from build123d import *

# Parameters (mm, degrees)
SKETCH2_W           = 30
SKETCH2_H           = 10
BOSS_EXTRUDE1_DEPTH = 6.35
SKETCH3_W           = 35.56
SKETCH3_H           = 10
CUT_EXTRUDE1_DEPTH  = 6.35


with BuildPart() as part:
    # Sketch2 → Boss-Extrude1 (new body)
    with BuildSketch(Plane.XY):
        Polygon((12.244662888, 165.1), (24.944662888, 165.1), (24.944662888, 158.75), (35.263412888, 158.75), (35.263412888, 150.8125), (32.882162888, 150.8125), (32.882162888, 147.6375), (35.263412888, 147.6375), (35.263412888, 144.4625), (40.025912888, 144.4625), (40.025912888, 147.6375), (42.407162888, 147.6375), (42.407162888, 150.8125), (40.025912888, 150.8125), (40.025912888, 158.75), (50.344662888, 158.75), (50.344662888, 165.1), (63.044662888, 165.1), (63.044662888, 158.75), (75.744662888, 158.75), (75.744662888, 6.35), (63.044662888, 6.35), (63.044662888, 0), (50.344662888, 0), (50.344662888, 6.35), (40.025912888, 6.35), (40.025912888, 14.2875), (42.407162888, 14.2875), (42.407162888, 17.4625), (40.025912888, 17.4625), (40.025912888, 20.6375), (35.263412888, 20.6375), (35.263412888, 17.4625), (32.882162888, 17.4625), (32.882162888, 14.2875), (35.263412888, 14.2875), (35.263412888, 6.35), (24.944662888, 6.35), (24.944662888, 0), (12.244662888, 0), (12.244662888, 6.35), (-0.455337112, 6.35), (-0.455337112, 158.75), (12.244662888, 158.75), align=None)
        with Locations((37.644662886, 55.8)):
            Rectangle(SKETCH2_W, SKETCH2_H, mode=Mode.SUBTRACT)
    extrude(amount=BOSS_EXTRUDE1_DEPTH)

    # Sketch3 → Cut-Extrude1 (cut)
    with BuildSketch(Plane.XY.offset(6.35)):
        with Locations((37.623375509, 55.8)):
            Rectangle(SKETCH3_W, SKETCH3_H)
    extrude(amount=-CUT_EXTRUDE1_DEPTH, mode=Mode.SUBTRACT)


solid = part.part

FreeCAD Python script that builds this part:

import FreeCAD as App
import Part
import Sketcher

V = App.Vector
Q = App.Units.Quantity

doc = App.newDocument("Part")
body = doc.addObject("PartDesign::Body", "Body")

sketch1 = body.newObject("Sketcher::SketchObject", "Sketch")
sketch1.AttachmentSupport = (doc.getObject("XY_Plane"), [""])
sketch1.MapMode = "FlatFace"
sketch1.addGeometry(Part.LineSegment(V(24.9, 165.1, 0), V(12.2, 165.1, 0)), False)
sketch1.addGeometry(Part.LineSegment(V(12.2, 165.1, 0), V(12.2, 158.8, 0)), False)
sketch1.addGeometry(Part.LineSegment(V(12.2, 158.8, 0), V(-0.5, 158.8, 0)), False)
sketch1.addGeometry(Part.LineSegment(V(-0.5, 158.8, 0), V(-0.5, 6.3, 0)), False)
sketch1.addGeometry(Part.LineSegment(V(-0.5, 6.3, 0), V(12.2, 6.3, 0)), False)
sketch1.addGeometry(Part.LineSegment(V(12.2, 6.3, 0), V(12.2, 0, 0)), False)
sketch1.addGeometry(Part.LineSegment(V(12.2, 0, 0), V(24.9, 0, 0)), False)
sketch1.addGeometry(Part.LineSegment(V(24.9, 0, 0), V(24.9, 6.3, 0)), False)
sketch1.addGeometry(Part.LineSegment(V(24.9, 6.3, 0), V(35.3, 6.3, 0)), False)
sketch1.addGeometry(Part.LineSegment(V(35.3, 6.3, 0), V(35.3, 14.3, 0)), False)
sketch1.addGeometry(Part.LineSegment(V(35.3, 14.3, 0), V(32.9, 14.3, 0)), False)
sketch1.addGeometry(Part.LineSegment(V(32.9, 14.3, 0), V(32.9, 17.5, 0)), False)
sketch1.addGeometry(Part.LineSegment(V(32.9, 17.5, 0), V(35.3, 17.5, 0)), False)
sketch1.addGeometry(Part.LineSegment(V(35.3, 17.5, 0), V(35.3, 20.6, 0)), False)
sketch1.addGeometry(Part.LineSegment(V(35.3, 20.6, 0), V(40, 20.6, 0)), False)
sketch1.addGeometry(Part.LineSegment(V(40, 20.6, 0), V(40, 17.5, 0)), False)
sketch1.addGeometry(Part.LineSegment(V(40, 17.5, 0), V(42.4, 17.5, 0)), False)
sketch1.addGeometry(Part.LineSegment(V(42.4, 17.5, 0), V(42.4, 14.3, 0)), False)
sketch1.addGeometry(Part.LineSegment(V(42.4, 14.3, 0), V(40, 14.3, 0)), False)
sketch1.addGeometry(Part.LineSegment(V(40, 14.3, 0), V(40, 6.3, 0)), False)
sketch1.addGeometry(Part.LineSegment(V(40, 6.3, 0), V(50.3, 6.3, 0)), False)
sketch1.addGeometry(Part.LineSegment(V(50.3, 6.3, 0), V(50.3, 0, 0)), False)
sketch1.addGeometry(Part.LineSegment(V(50.3, 0, 0), V(63, 0, 0)), False)
sketch1.addGeometry(Part.LineSegment(V(63, 0, 0), V(63, 6.3, 0)), False)
sketch1.addGeometry(Part.LineSegment(V(63, 6.3, 0), V(75.7, 6.3, 0)), False)
sketch1.addGeometry(Part.LineSegment(V(75.7, 6.3, 0), V(75.7, 158.8, 0)), False)
sketch1.addGeometry(Part.LineSegment(V(75.7, 158.8, 0), V(63, 158.8, 0)), False)
sketch1.addGeometry(Part.LineSegment(V(63, 158.8, 0), V(63, 165.1, 0)), False)
sketch1.addGeometry(Part.LineSegment(V(63, 165.1, 0), V(50.3, 165.1, 0)), False)
sketch1.addGeometry(Part.LineSegment(V(50.3, 165.1, 0), V(50.3, 158.8, 0)), False)
sketch1.addGeometry(Part.LineSegment(V(50.3, 158.8, 0), V(40, 158.8, 0)), False)
sketch1.addGeometry(Part.LineSegment(V(40, 158.8, 0), V(40, 150.8, 0)), False)
sketch1.addGeometry(Part.LineSegment(V(40, 150.8, 0), V(42.4, 150.8, 0)), False)
sketch1.addGeometry(Part.LineSegment(V(42.4, 150.8, 0), V(42.4, 147.6, 0)), False)
sketch1.addGeometry(Part.LineSegment(V(42.4, 147.6, 0), V(40, 147.6, 0)), False)
sketch1.addGeometry(Part.LineSegment(V(40, 147.6, 0), V(40, 144.5, 0)), False)
sketch1.addGeometry(Part.LineSegment(V(40, 144.5, 0), V(35.3, 144.5, 0)), False)
sketch1.addGeometry(Part.LineSegment(V(35.3, 144.5, 0), V(35.3, 147.6, 0)), False)
sketch1.addGeometry(Part.LineSegment(V(35.3, 147.6, 0), V(32.9, 147.6, 0)), False)
sketch1.addGeometry(Part.LineSegment(V(32.9, 147.6, 0), V(32.9, 150.8, 0)), False)
sketch1.addGeometry(Part.LineSegment(V(32.9, 150.8, 0), V(35.3, 150.8, 0)), False)
sketch1.addGeometry(Part.LineSegment(V(35.3, 150.8, 0), V(35.3, 158.8, 0)), False)
sketch1.addGeometry(Part.LineSegment(V(35.3, 158.8, 0), V(24.9, 158.8, 0)), False)
sketch1.addGeometry(Part.LineSegment(V(24.9, 158.8, 0), V(24.9, 165.1, 0)), False)
sketch1.addGeometry(Part.LineSegment(V(22.6, 50.8, 0), V(22.6, 60.8, 0)), False)
sketch1.addGeometry(Part.LineSegment(V(22.6, 60.8, 0), V(52.6, 60.8, 0)), False)
sketch1.addGeometry(Part.LineSegment(V(52.6, 60.8, 0), V(52.6, 50.8, 0)), False)
sketch1.addGeometry(Part.LineSegment(V(52.6, 50.8, 0), V(22.6, 50.8, 0)), False)
sketch1.addConstraint(Sketcher.Constraint("Coincident", 0, 2, 1, 1))
sketch1.addConstraint(Sketcher.Constraint("Coincident", 1, 2, 2, 1))
sketch1.addConstraint(Sketcher.Constraint("Coincident", 2, 2, 3, 1))
sketch1.addConstraint(Sketcher.Constraint("Coincident", 3, 2, 4, 1))
sketch1.addConstraint(Sketcher.Constraint("Coincident", 4, 2, 5, 1))
sketch1.addConstraint(Sketcher.Constraint("Coincident", 5, 2, 6, 1))
sketch1.addConstraint(Sketcher.Constraint("Coincident", 6, 2, 7, 1))
sketch1.addConstraint(Sketcher.Constraint("Coincident", 7, 2, 8, 1))
sketch1.addConstraint(Sketcher.Constraint("Coincident", 8, 2, 9, 1))
sketch1.addConstraint(Sketcher.Constraint("Coincident", 9, 2, 10, 1))
sketch1.addConstraint(Sketcher.Constraint("Coincident", 10, 2, 11, 1))
sketch1.addConstraint(Sketcher.Constraint("Coincident", 11, 2, 12, 1))
sketch1.addConstraint(Sketcher.Constraint("Coincident", 12, 2, 13, 1))
sketch1.addConstraint(Sketcher.Constraint("Coincident", 13, 2, 14, 1))
sketch1.addConstraint(Sketcher.Constraint("Coincident", 14, 2, 15, 1))
sketch1.addConstraint(Sketcher.Constraint("Coincident", 15, 2, 16, 1))
sketch1.addConstraint(Sketcher.Constraint("Coincident", 16, 2, 17, 1))
sketch1.addConstraint(Sketcher.Constraint("Coincident", 17, 2, 18, 1))
sketch1.addConstraint(Sketcher.Constraint("Coincident", 18, 2, 19, 1))
sketch1.addConstraint(Sketcher.Constraint("Coincident", 19, 2, 20, 1))
sketch1.addConstraint(Sketcher.Constraint("Coincident", 20, 2, 21, 1))
sketch1.addConstraint(Sketcher.Constraint("Coincident", 21, 2, 22, 1))
sketch1.addConstraint(Sketcher.Constraint("Coincident", 22, 2, 23, 1))
sketch1.addConstraint(Sketcher.Constraint("Coincident", 23, 2, 24, 1))
sketch1.addConstraint(Sketcher.Constraint("Coincident", 24, 2, 25, 1))
sketch1.addConstraint(Sketcher.Constraint("Coincident", 25, 2, 26, 1))
sketch1.addConstraint(Sketcher.Constraint("Coincident", 26, 2, 27, 1))
sketch1.addConstraint(Sketcher.Constraint("Coincident", 27, 2, 28, 1))
sketch1.addConstraint(Sketcher.Constraint("Coincident", 28, 2, 29, 1))
sketch1.addConstraint(Sketcher.Constraint("Coincident", 29, 2, 30, 1))
sketch1.addConstraint(Sketcher.Constraint("Coincident", 30, 2, 31, 1))
sketch1.addConstraint(Sketcher.Constraint("Coincident", 31, 2, 32, 1))
sketch1.addConstraint(Sketcher.Constraint("Coincident", 32, 2, 33, 1))
sketch1.addConstraint(Sketcher.Constraint("Coincident", 33, 2, 34, 1))
sketch1.addConstraint(Sketcher.Constraint("Coincident", 34, 2, 35, 1))
sketch1.addConstraint(Sketcher.Constraint("Coincident", 35, 2, 36, 1))
sketch1.addConstraint(Sketcher.Constraint("Coincident", 36, 2, 37, 1))
sketch1.addConstraint(Sketcher.Constraint("Coincident", 37, 2, 38, 1))
sketch1.addConstraint(Sketcher.Constraint("Coincident", 38, 2, 39, 1))
sketch1.addConstraint(Sketcher.Constraint("Coincident", 39, 2, 40, 1))
sketch1.addConstraint(Sketcher.Constraint("Coincident", 40, 2, 41, 1))
sketch1.addConstraint(Sketcher.Constraint("Coincident", 41, 2, 42, 1))
sketch1.addConstraint(Sketcher.Constraint("Coincident", 42, 2, 43, 1))
sketch1.addConstraint(Sketcher.Constraint("Coincident", 43, 2, 0, 1))
sketch1.addConstraint(Sketcher.Constraint("Coincident", 44, 2, 45, 1))
sketch1.addConstraint(Sketcher.Constraint("Coincident", 45, 2, 46, 1))
sketch1.addConstraint(Sketcher.Constraint("Coincident", 46, 2, 47, 1))
sketch1.addConstraint(Sketcher.Constraint("Coincident", 47, 2, 44, 1))
sketch1.addConstraint(Sketcher.Constraint("Horizontal", 0))
sketch1.addConstraint(Sketcher.Constraint("Vertical", 1))
sketch1.addConstraint(Sketcher.Constraint("Horizontal", 2))
sketch1.addConstraint(Sketcher.Constraint("Vertical", 3))
sketch1.addConstraint(Sketcher.Constraint("Horizontal", 4))
sketch1.addConstraint(Sketcher.Constraint("Vertical", 5))
sketch1.addConstraint(Sketcher.Constraint("Horizontal", 6))
sketch1.addConstraint(Sketcher.Constraint("Vertical", 7))
sketch1.addConstraint(Sketcher.Constraint("Horizontal", 8))
sketch1.addConstraint(Sketcher.Constraint("Vertical", 9))
sketch1.addConstraint(Sketcher.Constraint("Horizontal", 10))
sketch1.addConstraint(Sketcher.Constraint("Vertical", 11))
sketch1.addConstraint(Sketcher.Constraint("Horizontal", 12))
sketch1.addConstraint(Sketcher.Constraint("Vertical", 13))
sketch1.addConstraint(Sketcher.Constraint("Horizontal", 14))
sketch1.addConstraint(Sketcher.Constraint("Vertical", 15))
sketch1.addConstraint(Sketcher.Constraint("Horizontal", 16))
sketch1.addConstraint(Sketcher.Constraint("Vertical", 17))
sketch1.addConstraint(Sketcher.Constraint("Horizontal", 18))
sketch1.addConstraint(Sketcher.Constraint("Vertical", 19))
sketch1.addConstraint(Sketcher.Constraint("Horizontal", 20))
sketch1.addConstraint(Sketcher.Constraint("Vertical", 21))
sketch1.addConstraint(Sketcher.Constraint("Horizontal", 22))
sketch1.addConstraint(Sketcher.Constraint("Vertical", 23))
sketch1.addConstraint(Sketcher.Constraint("Horizontal", 24))
sketch1.addConstraint(Sketcher.Constraint("Vertical", 25))
sketch1.addConstraint(Sketcher.Constraint("Horizontal", 26))
sketch1.addConstraint(Sketcher.Constraint("Vertical", 27))
sketch1.addConstraint(Sketcher.Constraint("Horizontal", 28))
sketch1.addConstraint(Sketcher.Constraint("Vertical", 29))
sketch1.addConstraint(Sketcher.Constraint("Horizontal", 30))
sketch1.addConstraint(Sketcher.Constraint("Vertical", 31))
sketch1.addConstraint(Sketcher.Constraint("Horizontal", 32))
sketch1.addConstraint(Sketcher.Constraint("Vertical", 33))
sketch1.addConstraint(Sketcher.Constraint("Horizontal", 34))
sketch1.addConstraint(Sketcher.Constraint("Vertical", 35))
sketch1.addConstraint(Sketcher.Constraint("Horizontal", 36))
sketch1.addConstraint(Sketcher.Constraint("Vertical", 37))
sketch1.addConstraint(Sketcher.Constraint("Horizontal", 38))
sketch1.addConstraint(Sketcher.Constraint("Vertical", 39))
sketch1.addConstraint(Sketcher.Constraint("Horizontal", 40))
sketch1.addConstraint(Sketcher.Constraint("Vertical", 41))
sketch1.addConstraint(Sketcher.Constraint("Horizontal", 42))
sketch1.addConstraint(Sketcher.Constraint("Vertical", 43))
sketch1.addConstraint(Sketcher.Constraint("Vertical", 44))
sketch1.addConstraint(Sketcher.Constraint("Horizontal", 45))
sketch1.addConstraint(Sketcher.Constraint("Vertical", 46))
sketch1.addConstraint(Sketcher.Constraint("Horizontal", 47))
sketch1.addConstraint(Sketcher.Constraint("PointOnObject", 5, 2, -1))
sketch1.addConstraint(Sketcher.Constraint("PointOnObject", 21, 2, -1))
sketch1.addConstraint(Sketcher.Constraint("Horizontal", 4, 2, 7, 2))
sketch1.addConstraint(Sketcher.Constraint("Horizontal", 12, 2, 15, 2))
sketch1.addConstraint(Sketcher.Constraint("Horizontal", 10, 2, 17, 2))
sketch1.addConstraint(Sketcher.Constraint("Horizontal", 8, 2, 19, 2))
sketch1.addConstraint(Sketcher.Constraint("Horizontal", 20, 2, 23, 2))
sketch1.addConstraint(Sketcher.Constraint("Horizontal", 2, 2, 25, 2))
sketch1.addConstraint(Sketcher.Constraint("Horizontal", 0, 2, 27, 2))
sketch1.addConstraint(Sketcher.Constraint("Horizontal", 26, 2, 29, 2))
sketch1.addConstraint(Sketcher.Constraint("Horizontal", 34, 2, 37, 2))
sketch1.addConstraint(Sketcher.Constraint("Horizontal", 32, 2, 39, 2))
sketch1.addConstraint(Sketcher.Constraint("Horizontal", 30, 2, 41, 2))
sketch1.addConstraint(Sketcher.Constraint("Vertical", 1, 2, 4, 2))
sketch1.addConstraint(Sketcher.Constraint("Vertical", 9, 2, 12, 2))
sketch1.addConstraint(Sketcher.Constraint("Vertical", 15, 2, 18, 2))
sketch1.addConstraint(Sketcher.Constraint("Vertical", 23, 2, 26, 2))
sketch1.addConstraint(Sketcher.Constraint("Vertical", 21, 2, 28, 2))
sketch1.addConstraint(Sketcher.Constraint("Vertical", 19, 2, 30, 2))
sketch1.addConstraint(Sketcher.Constraint("Vertical", 17, 2, 32, 2))
sketch1.addConstraint(Sketcher.Constraint("Vertical", 31, 2, 34, 2))
sketch1.addConstraint(Sketcher.Constraint("Vertical", 13, 2, 36, 2))
sketch1.addConstraint(Sketcher.Constraint("Vertical", 11, 2, 38, 2))
sketch1.addConstraint(Sketcher.Constraint("Vertical", 37, 2, 40, 2))
sketch1.addConstraint(Sketcher.Constraint("Vertical", 7, 2, 42, 2))
sketch1.addConstraint(Sketcher.Constraint("Equal", 0, 2))
sketch1.addConstraint(Sketcher.Constraint("Equal", 12, 16))
sketch1.addConstraint(Sketcher.Constraint("Equal", 8, 20))
sketch1.addConstraint(Sketcher.Constraint("Equal", 6, 22))
sketch1.addConstraint(Sketcher.Constraint("Equal", 22, 24))
sketch1.addConstraint(Sketcher.Constraint("Equal", 1, 5))
sketch1.addConstraint(Sketcher.Constraint("Equal", 11, 13))
sketch1.addConstraint(Sketcher.Constraint("Equal", 19, 31))
sketch1.addConstraint(Sketcher.Constraint("Equal", 17, 33))
sketch1.addConstraint(Sketcher.Constraint("Equal", 33, 35))
sketch1.addConstraint(Sketcher.Constraint("DistanceY", 3, 2, 3, 1, Q("6 in")))
sketch1.addConstraint(Sketcher.Constraint("DistanceX", 0, 2, 0, 1, Q("0.5 in")))
sketch1.addConstraint(Sketcher.Constraint("DistanceY", -1, 1, 46, 2, Q("2 in")))
sketch1.addConstraint(Sketcher.Constraint("DistanceX", 2, 2, 25, 2, Q("3 in")))
sketch1.addConstraint(Sketcher.Constraint("DistanceY", 1, 2, 1, 1, Q("0.25 in")))
sketch1.addConstraint(Sketcher.Constraint("DistanceX", 8, 1, 8, 2, Q("0.40625 in")))
sketch1.addConstraint(Sketcher.Constraint("DistanceX", 10, 2, 10, 1, Q("0.09375 in")))
sketch1.addConstraint(Sketcher.Constraint("DistanceY", 9, 1, 9, 2, Q("0.3125 in")))
sketch1.addConstraint(Sketcher.Constraint("DistanceY", 11, 1, 11, 2, Q("0.125 in")))
sketch1.addConstraint(Sketcher.Constraint("DistanceX", 45, 1, 45, 2, Q("30 mm")))
sketch1.addConstraint(Sketcher.Constraint("DistanceY", 44, 1, 44, 2, Q("10 mm")))
sketch1.addConstraint(Sketcher.Constraint("DistanceX", 44, 2, 11, 2, Q("10.2375 mm")))
sketch1.addConstraint(Sketcher.Constraint("DistanceX", -1, 1, 0, 2, Q("12.244663 mm")))
pad1 = body.newObject("PartDesign::Pad", "Pad")
pad1.Profile = sketch1
pad1.Length = Q("0.25 in")

sketch2 = body.newObject("Sketcher::SketchObject", "Sketch001")
sketch2.AttachmentSupport = (doc.getObject("XY_Plane"), [""])
sketch2.MapMode = "FlatFace"
sketch2.AttachmentOffset = App.Placement(V(0, 0, 0.25 * 25.4), App.Rotation())
sketch2.addGeometry(Part.LineSegment(V(20, 61, 0), V(20, 51, 0)), False)
sketch2.addGeometry(Part.LineSegment(V(20, 51, 0), V(55, 51, 0)), False)
sketch2.addGeometry(Part.LineSegment(V(55, 51, 0), V(55, 61, 0)), False)
sketch2.addGeometry(Part.LineSegment(V(55, 61, 0), V(20, 61, 0)), False)
sketch2.addConstraint(Sketcher.Constraint("Coincident", 0, 2, 1, 1))
sketch2.addConstraint(Sketcher.Constraint("Coincident", 1, 2, 2, 1))
sketch2.addConstraint(Sketcher.Constraint("Coincident", 2, 2, 3, 1))
sketch2.addConstraint(Sketcher.Constraint("Coincident", 3, 2, 0, 1))
sketch2.addConstraint(Sketcher.Constraint("Vertical", 0))
sketch2.addConstraint(Sketcher.Constraint("Horizontal", 1))
sketch2.addConstraint(Sketcher.Constraint("Vertical", 2))
sketch2.addConstraint(Sketcher.Constraint("Horizontal", 3))
sketch2.addConstraint(Sketcher.Constraint("DistanceX", 1, 1, 1, 2, Q("1.4 in")))
sketch2.addConstraint(Sketcher.Constraint("DistanceY", -1, 1, 0, 2, Q("2 in")))
sketch2.addConstraint(Sketcher.Constraint("DistanceY", 0, 2, 0, 1, Q("10 mm")))
sketch2.addConstraint(Sketcher.Constraint("DistanceX", -1, 1, 0, 2, Q("19.843376 mm")))
pocket1 = body.newObject("PartDesign::Pocket", "Pocket")
pocket1.Profile = sketch2
pocket1.Length = Q("0.25 in")

doc.recompute()
